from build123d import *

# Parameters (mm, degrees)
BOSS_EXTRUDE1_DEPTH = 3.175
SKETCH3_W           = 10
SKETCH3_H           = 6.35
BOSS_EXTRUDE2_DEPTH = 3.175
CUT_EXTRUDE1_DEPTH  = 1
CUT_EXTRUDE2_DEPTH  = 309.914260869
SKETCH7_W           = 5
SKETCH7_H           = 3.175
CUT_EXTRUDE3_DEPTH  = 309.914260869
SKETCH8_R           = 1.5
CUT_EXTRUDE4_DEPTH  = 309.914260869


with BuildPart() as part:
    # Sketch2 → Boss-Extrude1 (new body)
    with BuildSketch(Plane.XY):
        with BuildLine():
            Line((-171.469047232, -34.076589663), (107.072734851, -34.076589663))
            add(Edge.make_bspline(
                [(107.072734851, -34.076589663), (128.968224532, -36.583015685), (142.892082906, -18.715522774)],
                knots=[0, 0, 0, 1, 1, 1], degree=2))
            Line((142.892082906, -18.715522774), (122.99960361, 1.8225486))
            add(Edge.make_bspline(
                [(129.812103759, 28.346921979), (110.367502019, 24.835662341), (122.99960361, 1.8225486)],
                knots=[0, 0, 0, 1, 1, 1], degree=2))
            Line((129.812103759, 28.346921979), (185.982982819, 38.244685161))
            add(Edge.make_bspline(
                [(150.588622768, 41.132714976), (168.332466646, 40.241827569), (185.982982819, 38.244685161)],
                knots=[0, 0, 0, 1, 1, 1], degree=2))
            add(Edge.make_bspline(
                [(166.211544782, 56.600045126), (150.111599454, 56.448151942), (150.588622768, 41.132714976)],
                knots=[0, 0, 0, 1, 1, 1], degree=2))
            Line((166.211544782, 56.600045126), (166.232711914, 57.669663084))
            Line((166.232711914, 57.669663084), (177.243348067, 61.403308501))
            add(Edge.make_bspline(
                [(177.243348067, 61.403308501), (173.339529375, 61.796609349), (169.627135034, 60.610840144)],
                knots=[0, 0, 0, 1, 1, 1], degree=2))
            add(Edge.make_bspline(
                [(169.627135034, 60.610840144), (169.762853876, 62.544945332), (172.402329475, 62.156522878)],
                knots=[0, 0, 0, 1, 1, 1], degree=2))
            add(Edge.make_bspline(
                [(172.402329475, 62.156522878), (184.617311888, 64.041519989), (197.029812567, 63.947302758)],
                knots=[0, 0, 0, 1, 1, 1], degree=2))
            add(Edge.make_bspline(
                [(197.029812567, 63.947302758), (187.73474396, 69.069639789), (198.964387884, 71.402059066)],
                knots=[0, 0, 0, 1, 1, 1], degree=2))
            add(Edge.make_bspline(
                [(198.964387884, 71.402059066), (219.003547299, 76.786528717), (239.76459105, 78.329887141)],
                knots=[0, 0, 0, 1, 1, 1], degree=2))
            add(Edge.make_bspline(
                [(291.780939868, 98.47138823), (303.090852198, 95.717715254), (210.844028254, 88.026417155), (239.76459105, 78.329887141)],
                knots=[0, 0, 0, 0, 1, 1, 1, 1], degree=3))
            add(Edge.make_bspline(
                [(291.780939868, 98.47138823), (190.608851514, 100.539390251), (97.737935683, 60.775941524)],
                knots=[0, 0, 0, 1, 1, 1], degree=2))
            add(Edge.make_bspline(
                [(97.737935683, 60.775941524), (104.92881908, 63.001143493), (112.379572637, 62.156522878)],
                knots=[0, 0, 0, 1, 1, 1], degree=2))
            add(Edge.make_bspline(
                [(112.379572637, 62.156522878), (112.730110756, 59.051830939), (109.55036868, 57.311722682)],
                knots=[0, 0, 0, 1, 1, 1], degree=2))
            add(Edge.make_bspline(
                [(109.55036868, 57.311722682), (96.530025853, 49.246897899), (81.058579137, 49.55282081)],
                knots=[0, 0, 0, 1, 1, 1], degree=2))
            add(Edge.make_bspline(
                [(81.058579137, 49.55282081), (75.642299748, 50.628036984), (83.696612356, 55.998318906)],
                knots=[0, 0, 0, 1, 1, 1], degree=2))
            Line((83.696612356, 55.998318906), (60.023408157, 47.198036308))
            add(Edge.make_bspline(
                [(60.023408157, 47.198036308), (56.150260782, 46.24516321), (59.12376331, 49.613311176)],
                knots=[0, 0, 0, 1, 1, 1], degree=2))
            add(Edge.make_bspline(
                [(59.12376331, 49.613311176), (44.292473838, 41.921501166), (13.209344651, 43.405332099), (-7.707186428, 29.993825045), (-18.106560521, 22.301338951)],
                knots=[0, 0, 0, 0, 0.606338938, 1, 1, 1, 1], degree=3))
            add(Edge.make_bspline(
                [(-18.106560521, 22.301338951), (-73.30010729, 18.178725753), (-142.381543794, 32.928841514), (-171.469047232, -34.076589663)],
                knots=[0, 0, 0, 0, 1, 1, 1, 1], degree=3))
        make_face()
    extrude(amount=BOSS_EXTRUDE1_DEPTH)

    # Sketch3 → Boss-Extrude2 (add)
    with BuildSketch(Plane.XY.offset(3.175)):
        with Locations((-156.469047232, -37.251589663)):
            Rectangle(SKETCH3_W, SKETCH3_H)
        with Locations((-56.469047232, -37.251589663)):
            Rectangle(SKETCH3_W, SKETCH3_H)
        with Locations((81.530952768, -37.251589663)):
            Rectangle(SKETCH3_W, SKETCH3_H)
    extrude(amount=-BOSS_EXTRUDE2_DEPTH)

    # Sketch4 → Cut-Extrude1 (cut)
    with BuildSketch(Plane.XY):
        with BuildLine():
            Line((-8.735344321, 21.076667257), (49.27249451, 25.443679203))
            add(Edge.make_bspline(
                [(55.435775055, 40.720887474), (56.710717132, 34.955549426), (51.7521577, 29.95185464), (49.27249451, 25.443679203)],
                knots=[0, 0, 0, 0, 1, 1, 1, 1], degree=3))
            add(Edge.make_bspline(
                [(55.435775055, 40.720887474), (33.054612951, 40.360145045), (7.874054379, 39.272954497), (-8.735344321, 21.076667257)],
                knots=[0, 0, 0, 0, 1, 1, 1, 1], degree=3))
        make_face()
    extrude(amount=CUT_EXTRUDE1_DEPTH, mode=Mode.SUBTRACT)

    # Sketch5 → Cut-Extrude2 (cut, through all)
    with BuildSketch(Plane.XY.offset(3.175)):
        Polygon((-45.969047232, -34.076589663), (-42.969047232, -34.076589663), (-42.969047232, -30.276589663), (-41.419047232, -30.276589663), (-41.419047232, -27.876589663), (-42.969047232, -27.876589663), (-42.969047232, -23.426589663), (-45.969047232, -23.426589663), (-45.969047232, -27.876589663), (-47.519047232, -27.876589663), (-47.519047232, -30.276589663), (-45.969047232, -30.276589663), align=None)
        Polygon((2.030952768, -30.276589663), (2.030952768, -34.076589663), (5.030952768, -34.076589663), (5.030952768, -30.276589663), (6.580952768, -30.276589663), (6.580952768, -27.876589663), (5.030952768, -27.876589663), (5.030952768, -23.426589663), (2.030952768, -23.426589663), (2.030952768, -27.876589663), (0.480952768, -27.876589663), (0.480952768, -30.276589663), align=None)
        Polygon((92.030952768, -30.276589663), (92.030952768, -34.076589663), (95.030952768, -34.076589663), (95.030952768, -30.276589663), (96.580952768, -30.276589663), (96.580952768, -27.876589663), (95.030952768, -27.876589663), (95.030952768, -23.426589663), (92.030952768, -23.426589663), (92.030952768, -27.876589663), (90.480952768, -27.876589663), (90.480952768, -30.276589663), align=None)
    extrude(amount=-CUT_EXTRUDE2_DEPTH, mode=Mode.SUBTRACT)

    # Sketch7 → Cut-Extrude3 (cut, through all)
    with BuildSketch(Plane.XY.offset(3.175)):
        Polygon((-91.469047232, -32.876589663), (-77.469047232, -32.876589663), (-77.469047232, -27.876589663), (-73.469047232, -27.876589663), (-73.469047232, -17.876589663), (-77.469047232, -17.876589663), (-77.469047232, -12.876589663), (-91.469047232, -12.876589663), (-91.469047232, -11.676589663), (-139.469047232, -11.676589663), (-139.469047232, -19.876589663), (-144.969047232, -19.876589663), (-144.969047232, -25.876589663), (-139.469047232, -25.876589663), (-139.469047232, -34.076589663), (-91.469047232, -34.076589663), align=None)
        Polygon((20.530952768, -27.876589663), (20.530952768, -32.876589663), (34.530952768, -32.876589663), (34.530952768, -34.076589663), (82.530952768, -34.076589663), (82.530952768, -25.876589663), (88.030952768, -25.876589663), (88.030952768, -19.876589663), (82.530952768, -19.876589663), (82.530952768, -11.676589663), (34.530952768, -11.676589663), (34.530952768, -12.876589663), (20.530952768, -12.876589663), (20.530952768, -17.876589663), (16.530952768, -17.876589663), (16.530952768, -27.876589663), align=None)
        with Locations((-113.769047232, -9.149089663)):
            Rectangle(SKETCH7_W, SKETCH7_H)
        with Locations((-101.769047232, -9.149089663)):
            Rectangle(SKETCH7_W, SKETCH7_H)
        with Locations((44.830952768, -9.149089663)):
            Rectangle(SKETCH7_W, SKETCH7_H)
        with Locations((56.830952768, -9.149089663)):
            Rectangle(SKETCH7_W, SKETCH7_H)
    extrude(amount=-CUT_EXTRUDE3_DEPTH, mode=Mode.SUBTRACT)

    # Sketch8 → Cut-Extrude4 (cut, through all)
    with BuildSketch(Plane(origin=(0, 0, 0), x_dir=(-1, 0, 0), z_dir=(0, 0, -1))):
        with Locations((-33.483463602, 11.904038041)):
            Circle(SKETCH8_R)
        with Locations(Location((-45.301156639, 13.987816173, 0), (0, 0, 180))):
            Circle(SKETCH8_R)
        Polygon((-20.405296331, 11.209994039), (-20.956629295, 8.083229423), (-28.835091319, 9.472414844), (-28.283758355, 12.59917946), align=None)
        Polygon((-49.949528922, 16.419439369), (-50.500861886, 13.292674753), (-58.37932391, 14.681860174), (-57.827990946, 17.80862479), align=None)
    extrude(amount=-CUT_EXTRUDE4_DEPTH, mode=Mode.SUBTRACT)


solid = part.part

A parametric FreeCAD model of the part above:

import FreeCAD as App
import Part
import Sketcher

V = App.Vector
Q = App.Units.Quantity

doc = App.newDocument("Part")
params = doc.addObject("Spreadsheet::Sheet", "Params")
for row, (alias, value) in enumerate([
    ("pad1_length", "3.175 mm"),
    ("sketch2_width", "10 mm"),
    ("sketch2_height", "6.35 mm"),
    ("pad2_length", "3.175 mm"),
    ("pocket1_length", "1 mm"),
    ("sketch4_width", "3 mm"),
    ("sketch4_height", "3.8 mm"),
    ("sketch4_height2", "2.4 mm"),
    ("sketch4_width2", "1.55 mm"),
    ("sketch4_height3", "4.45 mm"),
    ("sketch5_width", "14 mm"),
    ("sketch5_width2", "4 mm"),
    ("sketch5_width3", "48 mm"),
    ("sketch5_width4", "5 mm"),
    ("sketch5_height", "10 mm"),
    ("sketch6_diameter", "3 mm"),
    ("sketch6_length", "8 mm"),
], start=1):
    params.set(f"A{row}", alias)
    params.set(f"B{row}", "=" + value)
    params.setAlias(f"B{row}", alias)

body = doc.addObject("PartDesign::Body", "Body")

# Sketch on XY plane
sketch1 = body.newObject("Sketcher::SketchObject", "Sketch")
sketch1.AttachmentSupport = (doc.getObject("XY_Plane"), [""])
sketch1.MapMode = "FlatFace"
sketch1.addGeometry(Part.LineSegment(V(-171.469047, -34.07659, 0), V(107.072735, -34.07659, 0)), False)
sketch1.addGeometry(Part.BSplineCurve([V(107.072735, -34.07659, 0), V(128.968225, -36.583016, 0), V(142.892083, -18.715523, 0)], [3, 3], [0, 1], False, 2, [1, 1, 1], False), False)
sketch1.addGeometry(Part.LineSegment(V(142.892083, -18.715523, 0), V(122.999604, 1.822549, 0)), False)
sketch1.addGeometry(Part.BSplineCurve([V(129.812104, 28.346922, 0), V(110.367502, 24.835662, 0), V(122.999604, 1.822549, 0)], [3, 3], [0, 1], False, 2, [1, 1, 1], False), False)
sketch1.addGeometry(Part.LineSegment(V(129.812104, 28.346922, 0), V(185.982983, 38.244685, 0)), False)
sketch1.addGeometry(Part.BSplineCurve([V(150.588623, 41.132715, 0), V(168.332467, 40.241828, 0), V(185.982983, 38.244685, 0)], [3, 3], [0, 1], False, 2, [1, 1, 1], False), False)
sketch1.addGeometry(Part.BSplineCurve([V(166.211545, 56.600045, 0), V(150.111599, 56.448152, 0), V(150.588623, 41.132715, 0)], [3, 3], [0, 1], False, 2, [1, 1, 1], False), False)
sketch1.addGeometry(Part.LineSegment(V(166.211545, 56.600045, 0), V(166.232712, 57.669663, 0)), False)
sketch1.addGeometry(Part.LineSegment(V(166.232712, 57.669663, 0), V(177.243348, 61.403309, 0)), False)
sketch1.addGeometry(Part.BSplineCurve([V(177.243348, 61.403309, 0), V(173.339529, 61.796609, 0), V(169.627135, 60.61084, 0)], [3, 3], [0, 1], False, 2, [1, 1, 1], False), False)
sketch1.addGeometry(Part.BSplineCurve([V(169.627135, 60.61084, 0), V(169.762854, 62.544945, 0), V(172.402329, 62.156523, 0)], [3, 3], [0, 1], False, 2, [1, 1, 1], False), False)
sketch1.addGeometry(Part.BSplineCurve([V(172.402329, 62.156523, 0), V(184.617312, 64.04152, 0), V(197.029813, 63.947303, 0)], [3, 3], [0, 1], False, 2, [1, 1, 1], False), False)
sketch1.addGeometry(Part.BSplineCurve([V(197.029813, 63.947303, 0), V(187.734744, 69.06964, 0), V(198.964388, 71.402059, 0)], [3, 3], [0, 1], False, 2, [1, 1, 1], False), False)
sketch1.addGeometry(Part.BSplineCurve([V(198.964388, 71.402059, 0), V(219.003547, 76.786529, 0), V(239.764591, 78.329887, 0)], [3, 3], [0, 1], False, 2, [1, 1, 1], False), False)
sketch1.addGeometry(Part.BSplineCurve([V(291.78094, 98.471388, 0), V(303.090852, 95.717715, 0), V(210.844028, 88.026417, 0), V(239.764591, 78.329887, 0)], [4, 4], [0, 1], False, 3, [1, 1, 1, 1], False), False)
sketch1.addGeometry(Part.BSplineCurve([V(291.78094, 98.471388, 0), V(190.608852, 100.53939, 0), V(97.737936, 60.775942, 0)], [3, 3], [0, 1], False, 2, [1, 1, 1], False), False)
sketch1.addGeometry(Part.BSplineCurve([V(97.737936, 60.775942, 0), V(104.928819, 63.001143, 0), V(112.379573, 62.156523, 0)], [3, 3], [0, 1], False, 2, [1, 1, 1], False), False)
sketch1.addGeometry(Part.BSplineCurve([V(112.379573, 62.156523, 0), V(112.730111, 59.051831, 0), V(109.550369, 57.311723, 0)], [3, 3], [0, 1], False, 2, [1, 1, 1], False), False)
sketch1.addGeometry(Part.BSplineCurve([V(109.550369, 57.311723, 0), V(96.530026, 49.246898, 0), V(81.058579, 49.552821, 0)], [3, 3], [0, 1], False, 2, [1, 1, 1], False), False)
sketch1.addGeometry(Part.BSplineCurve([V(81.058579, 49.552821, 0), V(75.6423, 50.628037, 0), V(83.696612, 55.998319, 0)], [3, 3], [0, 1], False, 2, [1, 1, 1], False), False)
sketch1.addGeometry(Part.LineSegment(V(83.696612, 55.998319, 0), V(60.023408, 47.198036, 0)), False)
sketch1.addGeometry(Part.BSplineCurve([V(60.023408, 47.198036, 0), V(56.150261, 46.245163, 0), V(59.123763, 49.613311, 0)], [3, 3], [0, 1], False, 2, [1, 1, 1], False), False)
sketch1.addGeometry(Part.BSplineCurve([V(59.123763, 49.613311, 0), V(44.292474, 41.921501, 0), V(13.209345, 43.405332, 0), V(-7.707186, 29.993825, 0), V(-18.106561, 22.301339, 0)], [4, 1, 4], [0, 0.606338938, 1], False, 3, [1, 1, 1, 1, 1], False), False)
sketch1.addGeometry(Part.BSplineCurve([V(-18.106561, 22.301339, 0), V(-73.300107, 18.178726, 0), V(-142.381544, 32.928842, 0), V(-171.469047, -34.07659, 0)], [4, 4], [0, 1], False, 3, [1, 1, 1, 1], False), False)
sketch1.addConstraint(Sketcher.Constraint("Block", 1))
sketch1.addConstraint(Sketcher.Constraint("Block", 3))
sketch1.addConstraint(Sketcher.Constraint("Block", 5))
sketch1.addConstraint(Sketcher.Constraint("Block", 6))
sketch1.addConstraint(Sketcher.Constraint("Block", 9))
sketch1.addConstraint(Sketcher.Constraint("Block", 10))
sketch1.addConstraint(Sketcher.Constraint("Block", 11))
sketch1.addConstraint(Sketcher.Constraint("Block", 12))
sketch1.addConstraint(Sketcher.Constraint("Block", 13))
sketch1.addConstraint(Sketcher.Constraint("Block", 14))
sketch1.addConstraint(Sketcher.Constraint("Block", 15))
sketch1.addConstraint(Sketcher.Constraint("Block", 16))
sketch1.addConstraint(Sketcher.Constraint("Block", 17))
sketch1.addConstraint(Sketcher.Constraint("Block", 18))
sketch1.addConstraint(Sketcher.Constraint("Block", 19))
sketch1.addConstraint(Sketcher.Constraint("Block", 21))
sketch1.addConstraint(Sketcher.Constraint("Block", 22))
sketch1.addConstraint(Sketcher.Constraint("Block", 23))
sketch1.addConstraint(Sketcher.Constraint("Coincident", 0, 2, 1, 1))
sketch1.addConstraint(Sketcher.Constraint("Coincident", 1, 2, 2, 1))
sketch1.addConstraint(Sketcher.Constraint("Coincident", 2, 2, 3, 2))
sketch1.addConstraint(Sketcher.Constraint("Coincident", 3, 1, 4, 1))
sketch1.addConstraint(Sketcher.Constraint("Coincident", 4, 2, 5, 2))
sketch1.addConstraint(Sketcher.Constraint("Coincident", 6, 1, 7, 1))
sketch1.addConstraint(Sketcher.Constraint("Coincident", 7, 2, 8, 1))
sketch1.addConstraint(Sketcher.Constraint("Coincident", 8, 2, 9, 1))
sketch1.addConstraint(Sketcher.Constraint("Coincident", 19, 2, 20, 1))
sketch1.addConstraint(Sketcher.Constraint("Coincident", 20, 2, 21, 1))
sketch1.addConstraint(Sketcher.Constraint("Coincident", 23, 2, 0, 1))
sketch1.addConstraint(Sketcher.Constraint("DistanceX", -1, 1, 7, 2, 166.232712))
sketch1.addConstraint(Sketcher.Constraint("Distance", 7, 1.069827))
pad1 = body.newObject("PartDesign::Pad", "Pad")
pad1.Profile = sketch1
pad1.setExpression("Length", "Params.pad1_length")

# Sketch on XY plane
sketch2 = body.newObject("Sketcher::SketchObject", "Sketch001")
sketch2.AttachmentSupport = (doc.getObject("XY_Plane"), [""])
sketch2.MapMode = "FlatFace"
sketch2.AttachmentOffset = App.Placement(V(0, 0, 3.175), App.Rotation())
sketch2.addGeometry(Part.LineSegment(V(-161.469047, -34.07659, 0), V(-161.469047, -40.42659, 0)), False)
sketch2.addGeometry(Part.LineSegment(V(-161.469047, -40.42659, 0), V(-151.469047, -40.42659, 0)), False)
sketch2.addGeometry(Part.LineSegment(V(-151.469047, -40.42659, 0), V(-151.469047, -34.07659, 0)), False)
sketch2.addGeometry(Part.LineSegment(V(-151.469047, -34.07659, 0), V(-161.469047, -34.07659, 0)), False)
sketch2.addGeometry(Part.LineSegment(V(-61.469047, -34.07659, 0), V(-61.469047, -40.42659, 0)), False)
sketch2.addGeometry(Part.LineSegment(V(-61.469047, -40.42659, 0), V(-51.469047, -40.42659, 0)), False)
sketch2.addGeometry(Part.LineSegment(V(-51.469047, -40.42659, 0), V(-51.469047, -34.07659, 0)), False)
sketch2.addGeometry(Part.LineSegment(V(-51.469047, -34.07659, 0), V(-61.469047, -34.07659, 0)), False)
sketch2.addGeometry(Part.LineSegment(V(76.530953, -34.07659, 0), V(76.530953, -40.42659, 0)), False)
sketch2.addGeometry(Part.LineSegment(V(76.530953, -40.42659, 0), V(86.530953, -40.42659, 0)), False)
sketch2.addGeometry(Part.LineSegment(V(86.530953, -40.42659, 0), V(86.530953, -34.07659, 0)), False)
sketch2.addGeometry(Part.LineSegment(V(86.530953, -34.07659, 0), V(76.530953, -34.07659, 0)), False)
sketch2.addConstraint(Sketcher.Constraint("Coincident", 0, 2, 1, 1))
sketch2.addConstraint(Sketcher.Constraint("Coincident", 1, 2, 2, 1))
sketch2.addConstraint(Sketcher.Constraint("Coincident", 2, 2, 3, 1))
sketch2.addConstraint(Sketcher.Constraint("Coincident", 3, 2, 0, 1))
sketch2.addConstraint(Sketcher.Constraint("Coincident", 4, 2, 5, 1))
sketch2.addConstraint(Sketcher.Constraint("Coincident", 5, 2, 6, 1))
sketch2.addConstraint(Sketcher.Constraint("Coincident", 6, 2, 7, 1))
sketch2.addConstraint(Sketcher.Constraint("Coincident", 7, 2, 4, 1))
sketch2.addConstraint(Sketcher.Constraint("Coincident", 8, 2, 9, 1))
sketch2.addConstraint(Sketcher.Constraint("Coincident", 9, 2, 10, 1))
sketch2.addConstraint(Sketcher.Constraint("Coincident", 10, 2, 11, 1))
sketch2.addConstraint(Sketcher.Constraint("Coincident", 11, 2, 8, 1))
sketch2.addConstraint(Sketcher.Constraint("Vertical", 0))
sketch2.addConstraint(Sketcher.Constraint("Horizontal", 1))
sketch2.addConstraint(Sketcher.Constraint("Vertical", 2))
sketch2.addConstraint(Sketcher.Constraint("Horizontal", 3))
sketch2.addConstraint(Sketcher.Constraint("Vertical", 4))
sketch2.addConstraint(Sketcher.Constraint("Horizontal", 5))
sketch2.addConstraint(Sketcher.Constraint("Vertical", 6))
sketch2.addConstraint(Sketcher.Constraint("Horizontal", 7))
sketch2.addConstraint(Sketcher.Constraint("Vertical", 8))
sketch2.addConstraint(Sketcher.Constraint("Horizontal", 9))
sketch2.addConstraint(Sketcher.Constraint("Vertical", 10))
sketch2.addConstraint(Sketcher.Constraint("Horizontal", 11))
sketch2.addConstraint(Sketcher.Constraint("Horizontal", 1, 2, 4, 2))
sketch2.addConstraint(Sketcher.Constraint("Horizontal", 3, 2, 6, 2))
sketch2.addConstraint(Sketcher.Constraint("Horizontal", 5, 2, 8, 2))
sketch2.addConstraint(Sketcher.Constraint("Horizontal", 7, 2, 10, 2))
sketch2.addConstraint(Sketcher.Constraint("Equal", 3, 5))
sketch2.addConstraint(Sketcher.Constraint("Equal", 7, 9))
sketch2.addConstraint(Sketcher.Constraint("DistanceX", 1, 1, 1, 2, 10.0))
sketch2.addConstraint(Sketcher.Constraint("DistanceX", 1, 2, 4, 2, 90.0))
sketch2.addConstraint(Sketcher.Constraint("DistanceX", 5, 2, 8, 2, 128.0))
sketch2.addConstraint(Sketcher.Constraint("DistanceY", 0, 2, 0, 1, 6.35))
sketch2.addConstraint(Sketcher.Constraint("DistanceY", 0, 2, -1, 1, 40.42659))
sketch2.addConstraint(Sketcher.Constraint("DistanceX", 0, 2, -1, 1, 161.469047))
sketch2.setExpression("Constraints[30]", "Params.sketch2_width")
sketch2.setExpression("Constraints[33]", "Params.sketch2_height")
pad2 = body.newObject("PartDesign::Pad", "Pad001")
pad2.Profile = sketch2
pad2.setExpression("Length", "Params.pad2_length")
pad2.Reversed = True

# Sketch on XY plane
sketch3 = body.newObject("Sketcher::SketchObject", "Sketch002")
sketch3.AttachmentSupport = (doc.getObject("XY_Plane"), [""])
sketch3.MapMode = "FlatFace"
sketch3.addGeometry(Part.LineSegment(V(-8.735344, 21.076667, 0), V(49.272495, 25.443679, 0)), False)
sketch3.addGeometry(Part.BSplineCurve([V(55.435775, 40.720887, 0), V(56.710717, 34.955549, 0), V(51.752158, 29.951855, 0), V(49.272495, 25.443679, 0)], [4, 4], [0, 1], False, 3, [1, 1, 1, 1], False), False)
sketch3.addGeometry(Part.BSplineCurve([V(55.435775, 40.720887, 0), V(33.054613, 40.360145, 0), V(7.874054, 39.272954, 0), V(-8.735344, 21.076667, 0)], [4, 4], [0, 1], False, 3, [1, 1, 1, 1], False), False)
sketch3.addConstraint(Sketcher.Constraint("Block", 1))
sketch3.addConstraint(Sketcher.Constraint("Block", 2))
sketch3.addConstraint(Sketcher.Constraint("Coincident", 0, 2, 1, 2))
sketch3.addConstraint(Sketcher.Constraint("Coincident", 2, 2, 0, 1))
pocket1 = body.newObject("PartDesign::Pocket", "Pocket")
pocket1.Profile = sketch3
pocket1.setExpression("Length", "Params.pocket1_length")
pocket1.Reversed = True

# Sketch on XY plane
sketch4 = body.newObject("Sketcher::SketchObject", "Sketch003")
sketch4.AttachmentSupport = (doc.getObject("XY_Plane"), [""])
sketch4.MapMode = "FlatFace"
sketch4.AttachmentOffset = App.Placement(V(0, 0, 3.175), App.Rotation())
sketch4.addGeometry(Part.LineSegment(V(-45.969047, -34.07659, 0), V(-42.969047, -34.07659, 0)), False)
sketch4.addGeometry(Part.LineSegment(V(-42.969047, -34.07659, 0), V(-42.969047, -30.27659, 0)), False)
sketch4.addGeometry(Part.LineSegment(V(-42.969047, -30.27659, 0), V(-41.419047, -30.27659, 0)), False)
sketch4.addGeometry(Part.LineSegment(V(-41.419047, -30.27659, 0), V(-41.419047, -27.87659, 0)), False)
sketch4.addGeometry(Part.LineSegment(V(-41.419047, -27.87659, 0), V(-42.969047, -27.87659, 0)), False)
sketch4.addGeometry(Part.LineSegment(V(-42.969047, -27.87659, 0), V(-42.969047, -23.42659, 0)), False)
sketch4.addGeometry(Part.LineSegment(V(-42.969047, -23.42659, 0), V(-45.969047, -23.42659, 0)), False)
sketch4.addGeometry(Part.LineSegment(V(-45.969047, -23.42659, 0), V(-45.969047, -27.87659, 0)), False)
sketch4.addGeometry(Part.LineSegment(V(-45.969047, -27.87659, 0), V(-47.519047, -27.87659, 0)), False)
sketch4.addGeometry(Part.LineSegment(V(-47.519047, -27.87659, 0), V(-47.519047, -30.27659, 0)), False)
sketch4.addGeometry(Part.LineSegment(V(-47.519047, -30.27659, 0), V(-45.969047, -30.27659, 0)), False)
sketch4.addGeometry(Part.LineSegment(V(-45.969047, -30.27659, 0), V(-45.969047, -34.07659, 0)), False)
sketch4.addGeometry(Part.LineSegment(V(2.030953, -30.27659, 0), V(2.030953, -34.07659, 0)), False)
sketch4.addGeometry(Part.LineSegment(V(2.030953, -34.07659, 0), V(5.030953, -34.07659, 0)), False)
sketch4.addGeometry(Part.LineSegment(V(5.030953, -34.07659, 0), V(5.030953, -30.27659, 0)), False)
sketch4.addGeometry(Part.LineSegment(V(5.030953, -30.27659, 0), V(6.580953, -30.27659, 0)), False)
sketch4.addGeometry(Part.LineSegment(V(6.580953, -30.27659, 0), V(6.580953, -27.87659, 0)), False)
sketch4.addGeometry(Part.LineSegment(V(6.580953, -27.87659, 0), V(5.030953, -27.87659, 0)), False)
sketch4.addGeometry(Part.LineSegment(V(5.030953, -27.87659, 0), V(5.030953, -23.42659, 0)), False)
sketch4.addGeometry(Part.LineSegment(V(5.030953, -23.42659, 0), V(2.030953, -23.42659, 0)), False)
sketch4.addGeometry(Part.LineSegment(V(2.030953, -23.42659, 0), V(2.030953, -27.87659, 0)), False)
sketch4.addGeometry(Part.LineSegment(V(2.030953, -27.87659, 0), V(0.480953, -27.87659, 0)), False)
sketch4.addGeometry(Part.LineSegment(V(0.480953, -27.87659, 0), V(0.480953, -30.27659, 0)), False)
sketch4.addGeometry(Part.LineSegment(V(0.480953, -30.27659, 0), V(2.030953, -30.27659, 0)), False)
sketch4.addGeometry(Part.LineSegment(V(92.030953, -30.27659, 0), V(92.030953, -34.07659, 0)), False)
sketch4.addGeometry(Part.LineSegment(V(92.030953, -34.07659, 0), V(95.030953, -34.07659, 0)), False)
sketch4.addGeometry(Part.LineSegment(V(95.030953, -34.07659, 0), V(95.030953, -30.27659, 0)), False)
sketch4.addGeometry(Part.LineSegment(V(95.030953, -30.27659, 0), V(96.580953, -30.27659, 0)), False)
sketch4.addGeometry(Part.LineSegment(V(96.580953, -30.27659, 0), V(96.580953, -27.87659, 0)), False)
sketch4.addGeometry(Part.LineSegment(V(96.580953, -27.87659, 0), V(95.030953, -27.87659, 0)), False)
sketch4.addGeometry(Part.LineSegment(V(95.030953, -27.87659, 0), V(95.030953, -23.42659, 0)), False)
sketch4.addGeometry(Part.LineSegment(V(95.030953, -23.42659, 0), V(92.030953, -23.42659, 0)), False)
sketch4.addGeometry(Part.LineSegment(V(92.030953, -23.42659, 0), V(92.030953, -27.87659, 0)), False)
sketch4.addGeometry(Part.LineSegment(V(92.030953, -27.87659, 0), V(90.480953, -27.87659, 0)), False)
sketch4.addGeometry(Part.LineSegment(V(90.480953, -27.87659, 0), V(90.480953, -30.27659, 0)), False)
sketch4.addGeometry(Part.LineSegment(V(90.480953, -30.27659, 0), V(92.030953, -30.27659, 0)), False)
sketch4.addConstraint(Sketcher.Constraint("Coincident", 0, 2, 1, 1))
sketch4.addConstraint(Sketcher.Constraint("Coincident", 1, 2, 2, 1))
sketch4.addConstraint(Sketcher.Constraint("Coincident", 2, 2, 3, 1))
sketch4.addConstraint(Sketcher.Constraint("Coincident", 3, 2, 4, 1))
sketch4.addConstraint(Sketcher.Constraint("Coincident", 4, 2, 5, 1))
sketch4.addConstraint(Sketcher.Constraint("Coincident", 5, 2, 6, 1))
sketch4.addConstraint(Sketcher.Constraint("Coincident", 6, 2, 7, 1))
sketch4.addConstraint(Sketcher.Constraint("Coincident", 7, 2, 8, 1))
sketch4.addConstraint(Sketcher.Constraint("Coincident", 8, 2, 9, 1))
sketch4.addConstraint(Sketcher.Constraint("Coincident", 9, 2, 10, 1))
sketch4.addConstraint(Sketcher.Constraint("Coincident", 10, 2, 11, 1))
sketch4.addConstraint(Sketcher.Constraint("Coincident", 11, 2, 0, 1))
sketch4.addConstraint(Sketcher.Constraint("Coincident", 12, 2, 13, 1))
sketch4.addConstraint(Sketcher.Constraint("Coincident", 13, 2, 14, 1))
sketch4.addConstraint(Sketcher.Constraint("Coincident", 14, 2, 15, 1))
sketch4.addConstraint(Sketcher.Constraint("Coincident", 15, 2, 16, 1))
sketch4.addConstraint(Sketcher.Constraint("Coincident", 16, 2, 17, 1))
sketch4.addConstraint(Sketcher.Constraint("Coincident", 17, 2, 18, 1))
sketch4.addConstraint(Sketcher.Constraint("Coincident", 18, 2, 19, 1))
sketch4.addConstraint(Sketcher.Constraint("Coincident", 19, 2, 20, 1))
sketch4.addConstraint(Sketcher.Constraint("Coincident", 20, 2, 21, 1))
sketch4.addConstraint(Sketcher.Constraint("Coincident", 21, 2, 22, 1))
sketch4.addConstraint(Sketcher.Constraint("Coincident", 22, 2, 23, 1))
sketch4.addConstraint(Sketcher.Constraint("Coincident", 23, 2, 12, 1))
sketch4.addConstraint(Sketcher.Constraint("Coincident", 24, 2, 25, 1))
sketch4.addConstraint(Sketcher.Constraint("Coincident", 25, 2, 26, 1))
sketch4.addConstraint(Sketcher.Constraint("Coincident", 26, 2, 27, 1))
sketch4.addConstraint(Sketcher.Constraint("Coincident", 27, 2, 28, 1))
sketch4.addConstraint(Sketcher.Constraint("Coincident", 28, 2, 29, 1))
sketch4.addConstraint(Sketcher.Constraint("Coincident", 29, 2, 30, 1))
sketch4.addConstraint(Sketcher.Constraint("Coincident", 30, 2, 31, 1))
sketch4.addConstraint(Sketcher.Constraint("Coincident", 31, 2, 32, 1))
sketch4.addConstraint(Sketcher.Constraint("Coincident", 32, 2, 33, 1))
sketch4.addConstraint(Sketcher.Constraint("Coincident", 33, 2, 34, 1))
sketch4.addConstraint(Sketcher.Constraint("Coincident", 34, 2, 35, 1))
sketch4.addConstraint(Sketcher.Constraint("Coincident", 35, 2, 24, 1))
sketch4.addConstraint(Sketcher.Constraint("Horizontal", 0))
sketch4.addConstraint(Sketcher.Constraint("Vertical", 1))
sketch4.addConstraint(Sketcher.Constraint("Horizontal", 2))
sketch4.addConstraint(Sketcher.Constraint("Vertical", 3))
sketch4.addConstraint(Sketcher.Constraint("Horizontal", 4))
sketch4.addConstraint(Sketcher.Constraint("Vertical", 5))
sketch4.addConstraint(Sketcher.Constraint("Horizontal", 6))
sketch4.addConstraint(Sketcher.Constraint("Vertical", 7))
sketch4.addConstraint(Sketcher.Constraint("Horizontal", 8))
sketch4.addConstraint(Sketcher.Constraint("Vertical", 9))
sketch4.addConstraint(Sketcher.Constraint("Horizontal", 10))
sketch4.addConstraint(Sketcher.Constraint("Vertical", 11))
sketch4.addConstraint(Sketcher.Constraint("Vertical", 12))
sketch4.addConstraint(Sketcher.Constraint("Horizontal", 13))
sketch4.addConstraint(Sketcher.Constraint("Vertical", 14))
sketch4.addConstraint(Sketcher.Constraint("Horizontal", 15))
sketch4.addConstraint(Sketcher.Constraint("Vertical", 16))
sketch4.addConstraint(Sketcher.Constraint("Horizontal", 17))
sketch4.addConstraint(Sketcher.Constraint("Vertical", 18))
sketch4.addConstraint(Sketcher.Constraint("Horizontal", 19))
sketch4.addConstraint(Sketcher.Constraint("Vertical", 20))
sketch4.addConstraint(Sketcher.Constraint("Horizontal", 21))
sketch4.addConstraint(Sketcher.Constraint("Vertical", 22))
sketch4.addConstraint(Sketcher.Constraint("Horizontal", 23))
sketch4.addConstraint(Sketcher.Constraint("Vertical", 24))
sketch4.addConstraint(Sketcher.Constraint("Horizontal", 25))
sketch4.addConstraint(Sketcher.Constraint("Vertical", 26))
sketch4.addConstraint(Sketcher.Constraint("Horizontal", 27))
sketch4.addConstraint(Sketcher.Constraint("Vertical", 28))
sketch4.addConstraint(Sketcher.Constraint("Horizontal", 29))
sketch4.addConstraint(Sketcher.Constraint("Vertical", 30))
sketch4.addConstraint(Sketcher.Constraint("Horizontal", 31))
sketch4.addConstraint(Sketcher.Constraint("Vertical", 32))
sketch4.addConstraint(Sketcher.Constraint("Horizontal", 33))
sketch4.addConstraint(Sketcher.Constraint("Vertical", 34))
sketch4.addConstraint(Sketcher.Constraint("Horizontal", 35))
sketch4.addConstraint(Sketcher.Constraint("Horizontal", 4, 2, 7, 2))
sketch4.addConstraint(Sketcher.Constraint("Horizontal", 2, 2, 9, 2))
sketch4.addConstraint(Sketcher.Constraint("Horizontal", 11, 2, 12, 2))
sketch4.addConstraint(Sketcher.Constraint("Horizontal", 10, 2, 14, 2))
sketch4.addConstraint(Sketcher.Constraint("Horizontal", 8, 2, 16, 2))
sketch4.addConstraint(Sketcher.Constraint("Horizontal", 6, 2, 18, 2))
sketch4.addConstraint(Sketcher.Constraint("Horizontal", 17, 2, 20, 2))
sketch4.addConstraint(Sketcher.Constraint("Horizontal", 15, 2, 22, 2))
sketch4.addConstraint(Sketcher.Constraint("Horizontal", 13, 2, 24, 2))
sketch4.addConstraint(Sketcher.Constraint("Horizontal", 23, 2, 26, 2))
sketch4.addConstraint(Sketcher.Constraint("Horizontal", 21, 2, 28, 2))
sketch4.addConstraint(Sketcher.Constraint("Horizontal", 19, 2, 30, 2))
sketch4.addConstraint(Sketcher.Constraint("Horizontal", 29, 2, 32, 2))
sketch4.addConstraint(Sketcher.Constraint("Horizontal", 27, 2, 34, 2))
sketch4.addConstraint(Sketcher.Constraint("Vertical", 1, 2, 4, 2))
sketch4.addConstraint(Sketcher.Constraint("Vertical", 7, 2, 10, 2))
sketch4.addConstraint(Sketcher.Constraint("Vertical", 14, 2, 17, 2))
sketch4.addConstraint(Sketcher.Constraint("Vertical", 12, 2, 19, 2))
sketch4.addConstraint(Sketcher.Constraint("Vertical", 26, 2, 29, 2))
sketch4.addConstraint(Sketcher.Constraint("Vertical", 24, 2, 31, 2))
sketch4.addConstraint(Sketcher.Constraint("Equal", 4, 8))
sketch4.addConstraint(Sketcher.Constraint("Equal", 6, 13))
sketch4.addConstraint(Sketcher.Constraint("Equal", 10, 15))
sketch4.addConstraint(Sketcher.Constraint("Equal", 17, 21))
sketch4.addConstraint(Sketcher.Constraint("Equal", 19, 25))
sketch4.addConstraint(Sketcher.Constraint("Equal", 23, 27))
sketch4.addConstraint(Sketcher.Constraint("Equal", 29, 33))
sketch4.addConstraint(Sketcher.Constraint("DistanceX", 0, 1, 0, 2, 3.0))
sketch4.addConstraint(Sketcher.Constraint("DistanceY", 1, 1, 1, 2, 3.8))
sketch4.addConstraint(Sketcher.Constraint("DistanceY", 3, 1, 3, 2, 2.4))
sketch4.addConstraint(Sketcher.Constraint("DistanceX", 0, 2, 12, 2, 45.0))
sketch4.addConstraint(Sketcher.Constraint("DistanceX", 13, 2, 24, 2, 87.0))
sketch4.addConstraint(Sketcher.Constraint("DistanceX", 2, 1, 2, 2, 1.55))
sketch4.addConstraint(Sketcher.Constraint("DistanceY", 5, 1, 5, 2, 4.45))
sketch4.addConstraint(Sketcher.Constraint("DistanceY", 0, 2, -1, 1, 34.07659))
sketch4.addConstraint(Sketcher.Constraint("DistanceX", 0, 2, -1, 1, 42.969047))
sketch4.setExpression("Constraints[99]", "Params.sketch4_width")
sketch4.setExpression("Constraints[100]", "Params.sketch4_height")
sketch4.setExpression("Constraints[101]", "Params.sketch4_height2")
sketch4.setExpression("Constraints[104]", "Params.sketch4_width2")
sketch4.setExpression("Constraints[105]", "Params.sketch4_height3")
pocket2 = body.newObject("PartDesign::Pocket", "Pocket001")
pocket2.Profile = sketch4
pocket2.Type = "ThroughAll"

# Sketch on XY plane
sketch5 = body.newObject("Sketcher::SketchObject", "Sketch004")
sketch5.AttachmentSupport = (doc.getObject("XY_Plane"), [""])
sketch5.MapMode = "FlatFace"
sketch5.AttachmentOffset = App.Placement(V(0, 0, 3.175), App.Rotation())
sketch5.addGeometry(Part.LineSegment(V(-91.469047, -32.87659, 0), V(-77.469047, -32.87659, 0)), False)
sketch5.addGeometry(Part.LineSegment(V(-77.469047, -32.87659, 0), V(-77.469047, -27.87659, 0)), False)
sketch5.addGeometry(Part.LineSegment(V(-77.469047, -27.87659, 0), V(-73.469047, -27.87659, 0)), False)
sketch5.addGeometry(Part.LineSegment(V(-73.469047, -27.87659, 0), V(-73.469047, -17.87659, 0)), False)
sketch5.addGeometry(Part.LineSegment(V(-73.469047, -17.87659, 0), V(-77.469047, -17.87659, 0)), False)
sketch5.addGeometry(Part.LineSegment(V(-77.469047, -17.87659, 0), V(-77.469047, -12.87659, 0)), False)
sketch5.addGeometry(Part.LineSegment(V(-77.469047, -12.87659, 0), V(-91.469047, -12.87659, 0)), False)
sketch5.addGeometry(Part.LineSegment(V(-91.469047, -12.87659, 0), V(-91.469047, -11.67659, 0)), False)
sketch5.addGeometry(Part.LineSegment(V(-91.469047, -11.67659, 0), V(-139.469047, -11.67659, 0)), False)
sketch5.addGeometry(Part.LineSegment(V(-139.469047, -11.67659, 0), V(-139.469047, -19.87659, 0)), False)
sketch5.addGeometry(Part.LineSegment(V(-139.469047, -19.87659, 0), V(-144.969047, -19.87659, 0)), False)
sketch5.addGeometry(Part.LineSegment(V(-144.969047, -19.87659, 0), V(-144.969047, -25.87659, 0)), False)
sketch5.addGeometry(Part.LineSegment(V(-144.969047, -25.87659, 0), V(-139.469047, -25.87659, 0)), False)
sketch5.addGeometry(Part.LineSegment(V(-139.469047, -25.87659, 0), V(-139.469047, -34.07659, 0)), False)
sketch5.addGeometry(Part.LineSegment(V(-139.469047, -34.07659, 0), V(-91.469047, -34.07659, 0)), False)
sketch5.addGeometry(Part.LineSegment(V(-91.469047, -34.07659, 0), V(-91.469047, -32.87659, 0)), False)
sketch5.addGeometry(Part.LineSegment(V(20.530953, -27.87659, 0), V(20.530953, -32.87659, 0)), False)
sketch5.addGeometry(Part.LineSegment(V(20.530953, -32.87659, 0), V(34.530953, -32.87659, 0)), False)
sketch5.addGeometry(Part.LineSegment(V(34.530953, -32.87659, 0), V(34.530953, -34.07659, 0)), False)
sketch5.addGeometry(Part.LineSegment(V(34.530953, -34.07659, 0), V(82.530953, -34.07659, 0)), False)
sketch5.addGeometry(Part.LineSegment(V(82.530953, -34.07659, 0), V(82.530953, -25.87659, 0)), False)
sketch5.addGeometry(Part.LineSegment(V(82.530953, -25.87659, 0), V(88.030953, -25.87659, 0)), False)
sketch5.addGeometry(Part.LineSegment(V(88.030953, -25.87659, 0), V(88.030953, -19.87659, 0)), False)
sketch5.addGeometry(Part.LineSegment(V(88.030953, -19.87659, 0), V(82.530953, -19.87659, 0)), False)
sketch5.addGeometry(Part.LineSegment(V(82.530953, -19.87659, 0), V(82.530953, -11.67659, 0)), False)
sketch5.addGeometry(Part.LineSegment(V(82.530953, -11.67659, 0), V(34.530953, -11.67659, 0)), False)
sketch5.addGeometry(Part.LineSegment(V(34.530953, -11.67659, 0), V(34.530953, -12.87659, 0)), False)
sketch5.addGeometry(Part.LineSegment(V(34.530953, -12.87659, 0), V(20.530953, -12.87659, 0)), False)
sketch5.addGeometry(Part.LineSegment(V(20.530953, -12.87659, 0), V(20.530953, -17.87659, 0)), False)
sketch5.addGeometry(Part.LineSegment(V(20.530953, -17.87659, 0), V(16.530953, -17.87659, 0)), False)
sketch5.addGeometry(Part.LineSegment(V(16.530953, -17.87659, 0), V(16.530953, -27.87659, 0)), False)
sketch5.addGeometry(Part.LineSegment(V(16.530953, -27.87659, 0), V(20.530953, -27.87659, 0)), False)
sketch5.addGeometry(Part.LineSegment(V(-116.269047, -7.56159, 0), V(-116.269047, -10.73659, 0)), False)
sketch5.addGeometry(Part.LineSegment(V(-116.269047, -10.73659, 0), V(-111.269047, -10.73659, 0)), False)
sketch5.addGeometry(Part.LineSegment(V(-111.269047, -10.73659, 0), V(-111.269047, -7.56159, 0)), False)
sketch5.addGeometry(Part.LineSegment(V(-111.269047, -7.56159, 0), V(-116.269047, -7.56159, 0)), False)
sketch5.addGeometry(Part.LineSegment(V(-104.269047, -7.56159, 0), V(-104.269047, -10.73659, 0)), False)
sketch5.addGeometry(Part.LineSegment(V(-104.269047, -10.73659, 0), V(-99.269047, -10.73659, 0)), False)
sketch5.addGeometry(Part.LineSegment(V(-99.269047, -10.73659, 0), V(-99.269047, -7.56159, 0)), False)
sketch5.addGeometry(Part.LineSegment(V(-99.269047, -7.56159, 0), V(-104.269047, -7.56159, 0)), False)
sketch5.addGeometry(Part.LineSegment(V(42.330953, -7.56159, 0), V(42.330953, -10.73659, 0)), False)
sketch5.addGeometry(Part.LineSegment(V(42.330953, -10.73659, 0), V(47.330953, -10.73659, 0)), False)
sketch5.addGeometry(Part.LineSegment(V(47.330953, -10.73659, 0), V(47.330953, -7.56159, 0)), False)
sketch5.addGeometry(Part.LineSegment(V(47.330953, -7.56159, 0), V(42.330953, -7.56159, 0)), False)
sketch5.addGeometry(Part.LineSegment(V(54.330953, -7.56159, 0), V(54.330953, -10.73659, 0)), False)
sketch5.addGeometry(Part.LineSegment(V(54.330953, -10.73659, 0), V(59.330953, -10.73659, 0)), False)
sketch5.addGeometry(Part.LineSegment(V(59.330953, -10.73659, 0), V(59.330953, -7.56159, 0)), False)
sketch5.addGeometry(Part.LineSegment(V(59.330953, -7.56159, 0), V(54.330953, -7.56159, 0)), False)
sketch5.addConstraint(Sketcher.Constraint("Coincident", 0, 2, 1, 1))
sketch5.addConstraint(Sketcher.Constraint("Coincident", 1, 2, 2, 1))
sketch5.addConstraint(Sketcher.Constraint("Coincident", 2, 2, 3, 1))
sketch5.addConstraint(Sketcher.Constraint("Coincident", 3, 2, 4, 1))
sketch5.addConstraint(Sketcher.Constraint("Coincident", 4, 2, 5, 1))
sketch5.addConstraint(Sketcher.Constraint("Coincident", 5, 2, 6, 1))
sketch5.addConstraint(Sketcher.Constraint("Coincident", 6, 2, 7, 1))
sketch5.addConstraint(Sketcher.Constraint("Coincident", 7, 2, 8, 1))
sketch5.addConstraint(Sketcher.Constraint("Coincident", 8, 2, 9, 1))
sketch5.addConstraint(Sketcher.Constraint("Coincident", 9, 2, 10, 1))
sketch5.addConstraint(Sketcher.Constraint("Coincident", 10, 2, 11, 1))
sketch5.addConstraint(Sketcher.Constraint("Coincident", 11, 2, 12, 1))
sketch5.addConstraint(Sketcher.Constraint("Coincident", 12, 2, 13, 1))
sketch5.addConstraint(Sketcher.Constraint("Coincident", 13, 2, 14, 1))
sketch5.addConstraint(Sketcher.Constraint("Coincident", 14, 2, 15, 1))
sketch5.addConstraint(Sketcher.Constraint("Coincident", 15, 2, 0, 1))
sketch5.addConstraint(Sketcher.Constraint("Coincident", 16, 2, 17, 1))
sketch5.addConstraint(Sketcher.Constraint("Coincident", 17, 2, 18, 1))
sketch5.addConstraint(Sketcher.Constraint("Coincident", 18, 2, 19, 1))
sketch5.addConstraint(Sketcher.Constraint("Coincident", 19, 2, 20, 1))
sketch5.addConstraint(Sketcher.Constraint("Coincident", 20, 2, 21, 1))
sketch5.addConstraint(Sketcher.Constraint("Coincident", 21, 2, 22, 1))
sketch5.addConstraint(Sketcher.Constraint("Coincident", 22, 2, 23, 1))
sketch5.addConstraint(Sketcher.Constraint("Coincident", 23, 2, 24, 1))
sketch5.addConstraint(Sketcher.Constraint("Coincident", 24, 2, 25, 1))
sketch5.addConstraint(Sketcher.Constraint("Coincident", 25, 2, 26, 1))
sketch5.addConstraint(Sketcher.Constraint("Coincident", 26, 2, 27, 1))
sketch5.addConstraint(Sketcher.Constraint("Coincident", 27, 2, 28, 1))
sketch5.addConstraint(Sketcher.Constraint("Coincident", 28, 2, 29, 1))
sketch5.addConstraint(Sketcher.Constraint("Coincident", 29, 2, 30, 1))
sketch5.addConstraint(Sketcher.Constraint("Coincident", 30, 2, 31, 1))
sketch5.addConstraint(Sketcher.Constraint("Coincident", 31, 2, 16, 1))
sketch5.addConstraint(Sketcher.Constraint("Coincident", 32, 2, 33, 1))
sketch5.addConstraint(Sketcher.Constraint("Coincident", 33, 2, 34, 1))
sketch5.addConstraint(Sketcher.Constraint("Coincident", 34, 2, 35, 1))
sketch5.addConstraint(Sketcher.Constraint("Coincident", 35, 2, 32, 1))
sketch5.addConstraint(Sketcher.Constraint("Coincident", 36, 2, 37, 1))
sketch5.addConstraint(Sketcher.Constraint("Coincident", 37, 2, 38, 1))
sketch5.addConstraint(Sketcher.Constraint("Coincident", 38, 2, 39, 1))
sketch5.addConstraint(Sketcher.Constraint("Coincident", 39, 2, 36, 1))
sketch5.addConstraint(Sketcher.Constraint("Coincident", 40, 2, 41, 1))
sketch5.addConstraint(Sketcher.Constraint("Coincident", 41, 2, 42, 1))
sketch5.addConstraint(Sketcher.Constraint("Coincident", 42, 2, 43, 1))
sketch5.addConstraint(Sketcher.Constraint("Coincident", 43, 2, 40, 1))
sketch5.addConstraint(Sketcher.Constraint("Coincident", 44, 2, 45, 1))
sketch5.addConstraint(Sketcher.Constraint("Coincident", 45, 2, 46, 1))
sketch5.addConstraint(Sketcher.Constraint("Coincident", 46, 2, 47, 1))
sketch5.addConstraint(Sketcher.Constraint("Coincident", 47, 2, 44, 1))
sketch5.addConstraint(Sketcher.Constraint("Horizontal", 0))
sketch5.addConstraint(Sketcher.Constraint("Vertical", 1))
sketch5.addConstraint(Sketcher.Constraint("Horizontal", 2))
sketch5.addConstraint(Sketcher.Constraint("Vertical", 3))
sketch5.addConstraint(Sketcher.Constraint("Horizontal", 4))
sketch5.addConstraint(Sketcher.Constraint("Vertical", 5))
sketch5.addConstraint(Sketcher.Constraint("Horizontal", 6))
sketch5.addConstraint(Sketcher.Constraint("Vertical", 7))
sketch5.addConstraint(Sketcher.Constraint("Horizontal", 8))
sketch5.addConstraint(Sketcher.Constraint("Vertical", 9))
sketch5.addConstraint(Sketcher.Constraint("Horizontal", 10))
sketch5.addConstraint(Sketcher.Constraint("Vertical", 11))
sketch5.addConstraint(Sketcher.Constraint("Horizontal", 12))
sketch5.addConstraint(Sketcher.Constraint("Vertical", 13))
sketch5.addConstraint(Sketcher.Constraint("Horizontal", 14))
sketch5.addConstraint(Sketcher.Constraint("Vertical", 15))
sketch5.addConstraint(Sketcher.Constraint("Vertical", 16))
sketch5.addConstraint(Sketcher.Constraint("Horizontal", 17))
sketch5.addConstraint(Sketcher.Constraint("Vertical", 18))
sketch5.addConstraint(Sketcher.Constraint("Horizontal", 19))
sketch5.addConstraint(Sketcher.Constraint("Vertical", 20))
sketch5.addConstraint(Sketcher.Constraint("Horizontal", 21))
sketch5.addConstraint(Sketcher.Constraint("Vertical", 22))
sketch5.addConstraint(Sketcher.Constraint("Horizontal", 23))
sketch5.addConstraint(Sketcher.Constraint("Vertical", 24))
sketch5.addConstraint(Sketcher.Constraint("Horizontal", 25))
sketch5.addConstraint(Sketcher.Constraint("Vertical", 26))
sketch5.addConstraint(Sketcher.Constraint("Horizontal", 27))
sketch5.addConstraint(Sketcher.Constraint("Vertical", 28))
sketch5.addConstraint(Sketcher.Constraint("Horizontal", 29))
sketch5.addConstraint(Sketcher.Constraint("Vertical", 30))
sketch5.addConstraint(Sketcher.Constraint("Horizontal", 31))
sketch5.addConstraint(Sketcher.Constraint("Vertical", 32))
sketch5.addConstraint(Sketcher.Constraint("Horizontal", 33))
sketch5.addConstraint(Sketcher.Constraint("Vertical", 34))
sketch5.addConstraint(Sketcher.Constraint("Horizontal", 35))
sketch5.addConstraint(Sketcher.Constraint("Vertical", 36))
sketch5.addConstraint(Sketcher.Constraint("Horizontal", 37))
sketch5.addConstraint(Sketcher.Constraint("Vertical", 38))
sketch5.addConstraint(Sketcher.Constraint("Horizontal", 39))
sketch5.addConstraint(Sketcher.Constraint("Vertical", 40))
sketch5.addConstraint(Sketcher.Constraint("Horizontal", 41))
sketch5.addConstraint(Sketcher.Constraint("Vertical", 42))
sketch5.addConstraint(Sketcher.Constraint("Horizontal", 43))
sketch5.addConstraint(Sketcher.Constraint("Vertical", 44))
sketch5.addConstraint(Sketcher.Constraint("Horizontal", 45))
sketch5.addConstraint(Sketcher.Constraint("Vertical", 46))
sketch5.addConstraint(Sketcher.Constraint("Horizontal", 47))
sketch5.addConstraint(Sketcher.Constraint("Horizontal", 15, 2, 16, 2))
sketch5.addConstraint(Sketcher.Constraint("Horizontal", 14, 2, 18, 2))
sketch5.addConstraint(Sketcher.Constraint("Horizontal", 12, 2, 20, 2))
sketch5.addConstraint(Sketcher.Constraint("Horizontal", 10, 2, 22, 2))
sketch5.addConstraint(Sketcher.Constraint("Horizontal", 8, 2, 24, 2))
sketch5.addConstraint(Sketcher.Constraint("Horizontal", 6, 2, 26, 2))
sketch5.addConstraint(Sketcher.Constraint("Horizontal", 4, 2, 28, 2))
sketch5.addConstraint(Sketcher.Constraint("Horizontal", 2, 2, 30, 2))
sketch5.addConstraint(Sketcher.Constraint("Horizontal", 33, 2, 36, 2))
sketch5.addConstraint(Sketcher.Constraint("Horizontal", 35, 2, 38, 2))
sketch5.addConstraint(Sketcher.Constraint("Horizontal", 37, 2, 40, 2))
sketch5.addConstraint(Sketcher.Constraint("Horizontal", 39, 2, 42, 2))
sketch5.addConstraint(Sketcher.Constraint("Horizontal", 41, 2, 44, 2))
sketch5.addConstraint(Sketcher.Constraint("Horizontal", 43, 2, 46, 2))
sketch5.addConstraint(Sketcher.Constraint("Vertical", 1, 2, 4, 2))
sketch5.addConstraint(Sketcher.Constraint("Vertical", 9, 2, 12, 2))
sketch5.addConstraint(Sketcher.Constraint("Vertical", 7, 2, 14, 2))
sketch5.addConstraint(Sketcher.Constraint("Vertical", 20, 2, 23, 2))
sketch5.addConstraint(Sketcher.Constraint("Vertical", 18, 2, 25, 2))
sketch5.addConstraint(Sketcher.Constraint("Vertical", 16, 2, 27, 2))
sketch5.addConstraint(Sketcher.Constraint("Equal", 6, 17))
sketch5.addConstraint(Sketcher.Constraint("Equal", 14, 19))
sketch5.addConstraint(Sketcher.Constraint("Equal", 12, 21))
sketch5.addConstraint(Sketcher.Constraint("Equal", 4, 29))
sketch5.addConstraint(Sketcher.Constraint("Equal", 35, 37))
sketch5.addConstraint(Sketcher.Constraint("Equal", 39, 41))
sketch5.addConstraint(Sketcher.Constraint("Equal", 43, 45))
sketch5.addConstraint(Sketcher.Constraint("Equal", 47, 1))
sketch5.addConstraint(Sketcher.Constraint("Equal", 1, 5))
sketch5.addConstraint(Sketcher.Constraint("Equal", 9, 13))
sketch5.addConstraint(Sketcher.Constraint("Equal", 7, 15))
sketch5.addConstraint(Sketcher.Constraint("DistanceX", 0, 1, 0, 2, 14.0))
sketch5.addConstraint(Sketcher.Constraint("DistanceX", 2, 1, 2, 2, 4.0))
sketch5.addConstraint(Sketcher.Constraint("DistanceX", 8, 2, 8, 1, 48.0))
sketch5.addConstraint(Sketcher.Constraint("DistanceX", 33, 1, 33, 2, 5.0))
sketch5.addConstraint(Sketcher.Constraint("DistanceY", 3, 1, 3, 2, 10.0))
sketch5.addConstraint(Sketcher.Constraint("DistanceY", 11, 2, 11, 1, 6.0))
sketch5.addConstraint(Sketcher.Constraint("DistanceX", 10, 2, 10, 1, 5.5))
sketch5.addConstraint(Sketcher.Constraint("DistanceY", 7, 1, 7, 2, 1.2))
sketch5.addConstraint(Sketcher.Constraint("DistanceX", 2, 2, 16, 2, 94.0))
sketch5.addConstraint(Sketcher.Constraint("DistanceX", 33, 2, 36, 2, 7.0))
sketch5.addConstraint(Sketcher.Constraint("DistanceX", 41, 2, 44, 2, 7.0))
sketch5.addConstraint(Sketcher.Constraint("DistanceX", 8, 2, 32, 2, 23.2))
sketch5.addConstraint(Sketcher.Constraint("DistanceX", 25, 2, 40, 2, 7.8))
sketch5.addConstraint(Sketcher.Constraint("DistanceY", 32, 2, 32, 1, 3.175))
sketch5.addConstraint(Sketcher.Constraint("DistanceY", 8, 2, 32, 2, 0.94))
sketch5.addConstraint(Sketcher.Constraint("DistanceY", 0, 2, -1, 1, 32.87659))
sketch5.addConstraint(Sketcher.Constraint("DistanceX", 0, 2, -1, 1, 77.469047))
sketch5.setExpression("Constraints[127]", "Params.sketch5_width")
sketch5.setExpression("Constraints[128]", "Params.sketch5_width2")
sketch5.setExpression("Constraints[129]", "Params.sketch5_width3")
sketch5.setExpression("Constraints[130]", "Params.sketch5_width4")
sketch5.setExpression("Constraints[131]", "Params.sketch5_height")
pocket3 = body.newObject("PartDesign::Pocket", "Pocket002")
pocket3.Profile = sketch5
pocket3.Type = "ThroughAll"

# Sketch on XY plane
sketch6 = body.newObject("Sketcher::SketchObject", "Sketch005")
sketch6.AttachmentSupport = (doc.getObject("XY_Plane"), [""])
sketch6.MapMode = "FlatFace"
sketch6.addGeometry(Part.Circle(V(33.483464, 11.904038, 0), V(0, 0, 1), 1.5), False)
sketch6.addGeometry(Part.Circle(V(45.301157, 13.987816, 0), V(0, 0, 1), 1.5), False)
sketch6.addGeometry(Part.LineSegment(V(20.956629, 8.083229, 0), V(20.405296, 11.209994, 0)), False)
sketch6.addGeometry(Part.LineSegment(V(20.405296, 11.209994, 0), V(28.283758, 12.599179, 0)), False)
sketch6.addGeometry(Part.LineSegment(V(28.283758, 12.599179, 0), V(28.835091, 9.472415, 0)), False)
sketch6.addGeometry(Part.LineSegment(V(28.835091, 9.472415, 0), V(20.956629, 8.083229, 0)), False)
sketch6.addGeometry(Part.LineSegment(V(50.500862, 13.292675, 0), V(49.949529, 16.419439, 0)), False)
sketch6.addGeometry(Part.LineSegment(V(49.949529, 16.419439, 0), V(57.827991, 17.808625, 0)), False)
sketch6.addGeometry(Part.LineSegment(V(57.827991, 17.808625, 0), V(58.379324, 14.68186, 0)), False)
sketch6.addGeometry(Part.LineSegment(V(58.379324, 14.68186, 0), V(50.500862, 13.292675, 0)), False)
sketch6.addConstraint(Sketcher.Constraint("Coincident", 2, 2, 3, 1))
sketch6.addConstraint(Sketcher.Constraint("Coincident", 3, 2, 4, 1))
sketch6.addConstraint(Sketcher.Constraint("Coincident", 4, 2, 5, 1))
sketch6.addConstraint(Sketcher.Constraint("Coincident", 5, 2, 2, 1))
sketch6.addConstraint(Sketcher.Constraint("Coincident", 6, 2, 7, 1))
sketch6.addConstraint(Sketcher.Constraint("Coincident", 7, 2, 8, 1))
sketch6.addConstraint(Sketcher.Constraint("Coincident", 8, 2, 9, 1))
sketch6.addConstraint(Sketcher.Constraint("Coincident", 9, 2, 6, 1))
sketch6.addConstraint(Sketcher.Constraint("Equal", 0, 1))
sketch6.addConstraint(Sketcher.Constraint("Perpendicular", 2, 3))
sketch6.addConstraint(Sketcher.Constraint("Perpendicular", 3, 4))
sketch6.addConstraint(Sketcher.Constraint("Perpendicular", 4, 5))
sketch6.addConstraint(Sketcher.Constraint("Perpendicular", 5, 6))
sketch6.addConstraint(Sketcher.Constraint("Perpendicular", 6, 7))
sketch6.addConstraint(Sketcher.Constraint("Perpendicular", 7, 8))
sketch6.addConstraint(Sketcher.Constraint("Perpendicular", 8, 9))
sketch6.addConstraint(Sketcher.Constraint("Equal", 4, 6))
sketch6.addConstraint(Sketcher.Constraint("Equal", 5, 7))
sketch6.addConstraint(Sketcher.Constraint("Diameter", 0, 3.0))
sketch6.addConstraint(Sketcher.Constraint("Angle", 2, Q("100 deg")))
sketch6.addConstraint(Sketcher.Constraint("Distance", 3, 8.0))
sketch6.addConstraint(Sketcher.Constraint("Distance", 2, 3.175))
sketch6.addConstraint(Sketcher.Constraint("DistanceX", 3, 2, 1, 3, 17.017398))
sketch6.addConstraint(Sketcher.Constraint("DistanceY", 4, 2, 1, 3, 4.515401))
sketch6.addConstraint(Sketcher.Constraint("DistanceY", 0, 3, 6, 2, 4.515401))
sketch6.addConstraint(Sketcher.Constraint("DistanceX", 4, 2, 7, 2, 28.9929))
sketch6.addConstraint(Sketcher.Constraint("DistanceX", 0, 3, 9, 2, 17.017398))
sketch6.addConstraint(Sketcher.Constraint("DistanceY", -1, 1, 0, 3, 11.904038))
sketch6.addConstraint(Sketcher.Constraint("DistanceX", -1, 1, 3, 2, 28.283758))
sketch6.addConstraint(Sketcher.Constraint("DistanceY", -1, 1, 3, 2, 12.599179))
sketch6.setExpression("Constraints[18]", "Params.sketch6_diameter")
sketch6.setExpression("Constraints[20]", "Params.sketch6_length")
pocket4 = body.newObject("PartDesign::Pocket", "Pocket003")
pocket4.Profile = sketch6
pocket4.Type = "ThroughAll"
pocket4.Reversed = True

doc.recompute()
